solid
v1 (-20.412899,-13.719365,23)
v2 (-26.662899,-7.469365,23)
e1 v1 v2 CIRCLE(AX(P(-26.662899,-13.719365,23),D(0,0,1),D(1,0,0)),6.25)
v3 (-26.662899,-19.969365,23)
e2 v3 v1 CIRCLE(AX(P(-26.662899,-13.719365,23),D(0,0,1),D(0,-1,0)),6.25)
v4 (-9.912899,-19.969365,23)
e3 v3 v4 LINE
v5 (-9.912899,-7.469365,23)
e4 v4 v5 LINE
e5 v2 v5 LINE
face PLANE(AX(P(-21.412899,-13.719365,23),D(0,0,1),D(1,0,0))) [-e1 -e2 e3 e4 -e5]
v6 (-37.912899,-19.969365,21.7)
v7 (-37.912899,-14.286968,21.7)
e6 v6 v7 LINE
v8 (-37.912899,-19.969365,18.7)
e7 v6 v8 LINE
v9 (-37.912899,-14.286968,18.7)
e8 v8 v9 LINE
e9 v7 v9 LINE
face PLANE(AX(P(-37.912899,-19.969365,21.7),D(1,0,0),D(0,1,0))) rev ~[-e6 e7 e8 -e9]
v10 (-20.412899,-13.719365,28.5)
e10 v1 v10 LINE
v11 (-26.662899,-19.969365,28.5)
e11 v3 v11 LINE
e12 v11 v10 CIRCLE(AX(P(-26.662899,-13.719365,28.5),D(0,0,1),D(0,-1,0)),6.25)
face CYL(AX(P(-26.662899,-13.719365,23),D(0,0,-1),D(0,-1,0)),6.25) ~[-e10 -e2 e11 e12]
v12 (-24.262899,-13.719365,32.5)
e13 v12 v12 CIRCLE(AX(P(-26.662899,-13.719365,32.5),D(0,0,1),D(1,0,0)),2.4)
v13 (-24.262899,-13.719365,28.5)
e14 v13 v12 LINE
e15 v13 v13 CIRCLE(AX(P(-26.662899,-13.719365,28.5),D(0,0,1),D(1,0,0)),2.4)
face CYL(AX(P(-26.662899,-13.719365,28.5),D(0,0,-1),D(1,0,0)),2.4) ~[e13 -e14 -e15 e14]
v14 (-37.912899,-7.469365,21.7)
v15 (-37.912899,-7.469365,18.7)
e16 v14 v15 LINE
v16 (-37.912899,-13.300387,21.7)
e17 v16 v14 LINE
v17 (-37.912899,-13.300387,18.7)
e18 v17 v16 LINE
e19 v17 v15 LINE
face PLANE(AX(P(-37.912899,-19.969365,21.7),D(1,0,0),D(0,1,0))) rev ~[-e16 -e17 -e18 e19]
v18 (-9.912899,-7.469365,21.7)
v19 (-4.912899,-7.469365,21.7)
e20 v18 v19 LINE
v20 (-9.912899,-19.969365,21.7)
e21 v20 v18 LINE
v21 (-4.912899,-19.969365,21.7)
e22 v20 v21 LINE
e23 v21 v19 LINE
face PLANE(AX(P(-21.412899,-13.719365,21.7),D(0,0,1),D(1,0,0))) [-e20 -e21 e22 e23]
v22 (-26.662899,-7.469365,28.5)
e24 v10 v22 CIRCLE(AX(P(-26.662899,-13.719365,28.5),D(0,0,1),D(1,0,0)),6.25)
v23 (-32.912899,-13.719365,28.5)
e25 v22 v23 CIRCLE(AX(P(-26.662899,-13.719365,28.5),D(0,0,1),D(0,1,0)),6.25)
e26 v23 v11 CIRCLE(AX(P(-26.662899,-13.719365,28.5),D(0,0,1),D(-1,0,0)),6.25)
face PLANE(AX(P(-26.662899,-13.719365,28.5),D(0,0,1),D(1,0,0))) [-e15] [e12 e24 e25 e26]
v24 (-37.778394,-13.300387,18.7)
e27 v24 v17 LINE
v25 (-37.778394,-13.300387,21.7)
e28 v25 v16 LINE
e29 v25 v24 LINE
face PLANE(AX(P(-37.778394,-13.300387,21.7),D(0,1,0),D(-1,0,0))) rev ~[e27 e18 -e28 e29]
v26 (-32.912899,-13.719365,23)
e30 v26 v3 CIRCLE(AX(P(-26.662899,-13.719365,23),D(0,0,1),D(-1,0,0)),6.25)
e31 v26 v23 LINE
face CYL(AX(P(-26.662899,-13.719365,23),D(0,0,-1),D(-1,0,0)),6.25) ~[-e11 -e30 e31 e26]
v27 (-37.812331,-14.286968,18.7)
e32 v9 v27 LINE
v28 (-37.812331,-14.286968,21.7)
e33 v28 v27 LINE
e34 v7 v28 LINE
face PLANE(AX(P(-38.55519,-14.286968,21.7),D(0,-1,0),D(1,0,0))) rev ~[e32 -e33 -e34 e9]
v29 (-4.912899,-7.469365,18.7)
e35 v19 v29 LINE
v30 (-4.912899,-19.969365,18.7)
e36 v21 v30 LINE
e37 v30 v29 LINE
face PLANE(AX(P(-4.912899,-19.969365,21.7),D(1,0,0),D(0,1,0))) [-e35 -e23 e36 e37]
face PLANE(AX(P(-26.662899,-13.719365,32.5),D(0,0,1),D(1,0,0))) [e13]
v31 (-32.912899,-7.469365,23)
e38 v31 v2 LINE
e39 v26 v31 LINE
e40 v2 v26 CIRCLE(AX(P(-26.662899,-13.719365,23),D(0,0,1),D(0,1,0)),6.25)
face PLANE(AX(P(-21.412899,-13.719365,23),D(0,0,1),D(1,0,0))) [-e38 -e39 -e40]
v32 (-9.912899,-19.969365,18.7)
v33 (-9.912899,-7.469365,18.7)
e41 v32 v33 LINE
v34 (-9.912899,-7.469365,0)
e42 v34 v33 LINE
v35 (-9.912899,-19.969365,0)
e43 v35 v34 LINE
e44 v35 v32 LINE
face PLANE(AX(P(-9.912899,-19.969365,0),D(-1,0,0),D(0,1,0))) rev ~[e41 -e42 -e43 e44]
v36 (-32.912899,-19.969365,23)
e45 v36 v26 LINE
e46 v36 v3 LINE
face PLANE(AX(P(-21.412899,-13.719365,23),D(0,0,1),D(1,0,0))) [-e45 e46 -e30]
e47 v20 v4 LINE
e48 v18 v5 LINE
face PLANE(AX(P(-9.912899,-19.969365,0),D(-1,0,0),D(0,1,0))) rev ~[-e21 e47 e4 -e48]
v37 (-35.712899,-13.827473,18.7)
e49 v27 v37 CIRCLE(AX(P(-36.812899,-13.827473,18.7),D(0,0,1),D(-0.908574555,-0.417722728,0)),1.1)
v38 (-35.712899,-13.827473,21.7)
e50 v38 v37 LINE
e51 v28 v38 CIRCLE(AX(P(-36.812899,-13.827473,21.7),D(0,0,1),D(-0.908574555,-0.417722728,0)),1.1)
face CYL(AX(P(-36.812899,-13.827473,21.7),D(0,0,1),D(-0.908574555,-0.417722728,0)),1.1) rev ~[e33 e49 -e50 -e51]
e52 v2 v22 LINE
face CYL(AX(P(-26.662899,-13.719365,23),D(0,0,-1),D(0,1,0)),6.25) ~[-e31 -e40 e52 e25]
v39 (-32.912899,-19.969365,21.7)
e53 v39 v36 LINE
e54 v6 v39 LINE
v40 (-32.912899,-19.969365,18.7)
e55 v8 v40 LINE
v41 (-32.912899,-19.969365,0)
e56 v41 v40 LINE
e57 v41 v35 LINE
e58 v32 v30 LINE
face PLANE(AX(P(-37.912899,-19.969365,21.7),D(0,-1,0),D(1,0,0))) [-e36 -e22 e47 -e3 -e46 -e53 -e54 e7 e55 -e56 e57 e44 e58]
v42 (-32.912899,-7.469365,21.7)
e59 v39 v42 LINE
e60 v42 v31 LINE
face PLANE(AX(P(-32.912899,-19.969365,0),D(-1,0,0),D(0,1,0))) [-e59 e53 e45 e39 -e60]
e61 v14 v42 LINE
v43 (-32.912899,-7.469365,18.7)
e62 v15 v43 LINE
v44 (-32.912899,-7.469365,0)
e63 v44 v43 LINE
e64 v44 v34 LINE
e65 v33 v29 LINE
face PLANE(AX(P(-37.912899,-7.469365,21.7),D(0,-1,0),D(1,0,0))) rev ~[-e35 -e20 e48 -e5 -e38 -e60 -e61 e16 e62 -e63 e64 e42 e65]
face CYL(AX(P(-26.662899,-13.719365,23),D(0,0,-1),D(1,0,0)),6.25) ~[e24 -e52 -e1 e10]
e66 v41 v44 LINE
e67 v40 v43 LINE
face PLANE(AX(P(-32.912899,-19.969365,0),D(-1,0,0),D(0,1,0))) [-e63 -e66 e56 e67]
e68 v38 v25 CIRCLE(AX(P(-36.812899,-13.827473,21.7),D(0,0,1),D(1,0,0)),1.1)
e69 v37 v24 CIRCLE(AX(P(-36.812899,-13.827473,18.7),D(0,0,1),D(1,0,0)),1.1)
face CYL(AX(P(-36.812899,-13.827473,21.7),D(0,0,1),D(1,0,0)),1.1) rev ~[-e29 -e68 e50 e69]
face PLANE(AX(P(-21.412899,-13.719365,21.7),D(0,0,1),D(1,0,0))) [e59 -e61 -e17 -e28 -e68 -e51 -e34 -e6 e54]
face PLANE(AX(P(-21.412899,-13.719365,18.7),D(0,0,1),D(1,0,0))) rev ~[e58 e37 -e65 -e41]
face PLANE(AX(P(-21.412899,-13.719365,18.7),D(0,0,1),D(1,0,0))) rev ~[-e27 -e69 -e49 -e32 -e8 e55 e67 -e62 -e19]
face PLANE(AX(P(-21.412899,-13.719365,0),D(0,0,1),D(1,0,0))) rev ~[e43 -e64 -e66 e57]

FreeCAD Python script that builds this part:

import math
import FreeCAD as App
import Part
import Sketcher


def add_polygon(sketch, points):
    """Adds a closed chain of lines whose ends are joined by coincident constraints."""
    first, n = sketch.GeometryCount, len(points)
    for a, b in zip(points, points[1:] + points[:1]):
        sketch.addGeometry(Part.LineSegment(App.Vector(*a, 0), App.Vector(*b, 0)), False)
    for i in range(n):
        sketch.addConstraint(Sketcher.Constraint("Coincident", first + i, 2, first + (i + 1) % n, 1))

doc = App.newDocument("Part")
body = doc.addObject("PartDesign::Body", "Body")

# Sketch on XY plane
sketch1 = body.newObject("Sketcher::SketchObject", "Sketch")
sketch1.AttachmentSupport = (doc.getObject("XY_Plane"), [""])
sketch1.MapMode = "FlatFace"
add_polygon(sketch1, [(-33, -7), (-33, -20), (-10, -20), (-10, -7)])  # lines 0-3
sketch1.addConstraint([
    Sketcher.Constraint("Vertical", 0),
    Sketcher.Constraint("Horizontal", 1),
    Sketcher.Constraint("Vertical", 2),
    Sketcher.Constraint("Horizontal", 3),
    Sketcher.Constraint("DistanceX", 1, 1, 1, 2, 23.0),
    Sketcher.Constraint("DistanceY", 0, 2, 0, 1, 12.5),
    Sketcher.Constraint("DistanceX", 0, 2, -1, 1, 32.912899),
    Sketcher.Constraint("DistanceY", 0, 2, -1, 1, 19.969365),
])
pad1 = body.newObject("PartDesign::Pad", "Pad")
pad1.Profile = sketch1
pad1.Length = 23

# Sketch on XY plane
sketch2 = body.newObject("Sketcher::SketchObject", "Sketch001")
sketch2.AttachmentSupport = (doc.getObject("XY_Plane"), [""])
sketch2.MapMode = "FlatFace"
sketch2.AttachmentOffset = App.Placement(App.Vector(0, 0, 21.7), App.Rotation())
add_polygon(sketch2, [(-38, -7), (-38, -20), (-5, -20), (-5, -7)])  # lines 0-3
sketch2.addConstraint([
    Sketcher.Constraint("Vertical", 0),
    Sketcher.Constraint("Horizontal", 1),
    Sketcher.Constraint("Vertical", 2),
    Sketcher.Constraint("Horizontal", 3),
    Sketcher.Constraint("DistanceX", 1, 1, 1, 2, 33.0),
    Sketcher.Constraint("DistanceY", 0, 2, 0, 1, 12.5),
    Sketcher.Constraint("DistanceX", 0, 2, -1, 1, 37.912899),
    Sketcher.Constraint("DistanceY", 0, 2, -1, 1, 19.969365),
])
pad2 = body.newObject("PartDesign::Pad", "Pad001")
pad2.Profile = sketch2
pad2.Length = 3
pad2.Reversed = True

# Sketch on XY plane
sketch3 = body.newObject("Sketcher::SketchObject", "Sketch002")
sketch3.AttachmentSupport = (doc.getObject("XY_Plane"), [""])
sketch3.MapMode = "FlatFace"
sketch3.AttachmentOffset = App.Placement(App.Vector(0, 0, 23), App.Rotation())
sketch3.addGeometry([
    Part.ArcOfCircle(Part.Circle(App.Vector(-27, -14, 0), App.Vector(0, 0, 1), 6), math.radians(-90), math.radians(0)),
    Part.ArcOfCircle(Part.Circle(App.Vector(-27, -14, 0), App.Vector(0, 0, 1), 6), math.radians(0), math.radians(90)),
    Part.ArcOfCircle(Part.Circle(App.Vector(-27, -14, 0), App.Vector(0, 0, 1), 6), math.radians(90), math.radians(180)),
    Part.ArcOfCircle(Part.Circle(App.Vector(-27, -14, 0), App.Vector(0, 0, 1), 6), math.radians(180), math.radians(270)),
], False)
sketch3.addConstraint([
    Sketcher.Constraint("Tangent", 0, 2, 1, 1),
    Sketcher.Constraint("Tangent", 1, 2, 2, 1),
    Sketcher.Constraint("Tangent", 2, 2, 3, 1),
    Sketcher.Constraint("Tangent", 3, 2, 0, 1),
    Sketcher.Constraint("Equal", 0, 1),
    Sketcher.Constraint("Horizontal", 3, 3, 0, 2),
    Sketcher.Constraint("Horizontal", 0, 2, 2, 2),
    Sketcher.Constraint("Vertical", 3, 3, 1, 2),
    Sketcher.Constraint("Vertical", 1, 2, 3, 2),
    Sketcher.Constraint("Radius", 0, 6.25),
    Sketcher.Constraint("DistanceX", 0, 3, -1, 1, 26.662899),
    Sketcher.Constraint("DistanceY", 0, 3, -1, 1, 13.719365),
])
pad3 = body.newObject("PartDesign::Pad", "Pad002")
pad3.Profile = sketch3
pad3.Length = 5.5

# Sketch on XY plane
sketch4 = body.newObject("Sketcher::SketchObject", "Sketch003")
sketch4.AttachmentSupport = (doc.getObject("XY_Plane"), [""])
sketch4.MapMode = "FlatFace"
sketch4.AttachmentOffset = App.Placement(App.Vector(0, 0, 28.5), App.Rotation())
sketch4.addGeometry(Part.Circle(App.Vector(-26.7, -13.7, 0), App.Vector(0, 0, 1), 2.4), False)
sketch4.addConstraint([
    Sketcher.Constraint("Diameter", 0, 4.8),
    Sketcher.Constraint("DistanceX", 0, 3, -1, 1, 26.662899),
    Sketcher.Constraint("DistanceY", 0, 3, -1, 1, 13.719365),
])
pad4 = body.newObject("PartDesign::Pad", "Pad003")
pad4.Profile = sketch4
pad4.Length = 4

# Sketch on XY plane
sketch5 = body.newObject("Sketcher::SketchObject", "Sketch004")
sketch5.AttachmentSupport = (doc.getObject("XY_Plane"), [""])
sketch5.MapMode = "FlatFace"
sketch5.AttachmentOffset = App.Placement(App.Vector(0, 0, 21.7), App.Rotation())
sketch5.addGeometry([
    Part.LineSegment(App.Vector(-38.6, -14.3, 0), App.Vector(-37.8, -14.3, 0)),  # 0
    Part.ArcOfCircle(Part.Circle(App.Vector(-36.8, -13.8, 0), App.Vector(0, 0, 1), 1.1), math.radians(-155), math.radians(0)),  # 1
    Part.ArcOfCircle(Part.Circle(App.Vector(-36.8, -13.8, 0), App.Vector(0, 0, 1), 1.1), math.radians(0), math.radians(151)),  # 2
    Part.LineSegment(App.Vector(-37.8, -13.3, 0), App.Vector(-38.6, -13.3, 0)),  # 3
    Part.LineSegment(App.Vector(-38.6, -13.3, 0), App.Vector(-38.6, -14.3, 0)),  # 4
], False)
sketch5.addConstraint([
    Sketcher.Constraint("Coincident", 0, 2, 1, 1),
    Sketcher.Constraint("Tangent", 1, 2, 2, 1),
    Sketcher.Constraint("Coincident", 2, 2, 3, 1),
    Sketcher.Constraint("Coincident", 3, 2, 4, 1),
    Sketcher.Constraint("Coincident", 4, 2, 0, 1),
    Sketcher.Constraint("Horizontal", 0),
    Sketcher.Constraint("Horizontal", 3),
    Sketcher.Constraint("Vertical", 4),
    Sketcher.Constraint("Equal", 1, 2),
    Sketcher.Constraint("Horizontal", 2, 3, 1, 2),
    Sketcher.Constraint("Radius", 1, 1.1),
    Sketcher.Constraint("DistanceX", 0, 1, 0, 2, 0.742859),
    Sketcher.Constraint("DistanceY", 4, 2, 4, 1, 0.986581),
    Sketcher.Constraint("DistanceX", 1, 3, -1, 1, 36.812899),
    Sketcher.Constraint("DistanceX", 3, 2, 3, 1, 0.776796),
    Sketcher.Constraint("DistanceY", 1, 3, -1, 1, 13.827473),
])
pocket1 = body.newObject("PartDesign::Pocket", "Pocket")
pocket1.Profile = sketch5
pocket1.Length = 25

doc.recompute()
